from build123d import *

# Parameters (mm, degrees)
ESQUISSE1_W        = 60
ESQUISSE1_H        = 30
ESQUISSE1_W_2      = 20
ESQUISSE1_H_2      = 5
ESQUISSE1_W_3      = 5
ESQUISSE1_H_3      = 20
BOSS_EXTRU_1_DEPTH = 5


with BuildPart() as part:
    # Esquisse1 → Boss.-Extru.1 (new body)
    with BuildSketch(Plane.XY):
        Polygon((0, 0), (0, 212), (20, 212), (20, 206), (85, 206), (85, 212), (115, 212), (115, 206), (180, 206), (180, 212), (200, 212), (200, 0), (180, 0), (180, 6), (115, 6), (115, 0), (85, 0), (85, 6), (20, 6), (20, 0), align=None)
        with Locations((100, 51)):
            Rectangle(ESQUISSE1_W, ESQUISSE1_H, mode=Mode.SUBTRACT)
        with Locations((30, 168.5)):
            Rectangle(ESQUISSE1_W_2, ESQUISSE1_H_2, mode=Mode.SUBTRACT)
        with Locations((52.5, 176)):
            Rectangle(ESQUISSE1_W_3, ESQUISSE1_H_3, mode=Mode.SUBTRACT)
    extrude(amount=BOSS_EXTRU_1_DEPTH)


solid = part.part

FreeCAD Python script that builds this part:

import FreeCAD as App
import Part
import Sketcher


def add_polygon(sketch, points):
    """Adds a closed chain of lines whose ends are joined by coincident constraints."""
    first, n = sketch.GeometryCount, len(points)
    for a, b in zip(points, points[1:] + points[:1]):
        sketch.addGeometry(Part.LineSegment(App.Vector(*a, 0), App.Vector(*b, 0)), False)
    for i in range(n):
        sketch.addConstraint(Sketcher.Constraint("Coincident", first + i, 2, first + (i + 1) % n, 1))

doc = App.newDocument("Part")
body = doc.addObject("PartDesign::Body", "Body")

# Sketch on XY plane
sketch1 = doc.addObject("Sketcher::SketchObject", "Sketch")
body.addObject(sketch1)
sketch1.AttachmentSupport = (doc.XY_Plane, [""])
sketch1.MapMode = "FlatFace"
add_polygon(sketch1, [(0, 212), (0, 0), (20, 0), (20, 6), (85, 6), (85, 0), (115, 0), (115, 6), (180, 6), (180, 0), (200, 0), (200, 212), (180, 212), (180, 206), (115, 206), (115, 212), (85, 212), (85, 206), (20, 206), (20, 212)])  # lines 0-19
add_polygon(sketch1, [(70, 36), (70, 66), (130, 66), (130, 36)])  # lines 20-23
add_polygon(sketch1, [(50, 166), (50, 186), (55, 186), (55, 166)])  # lines 24-27
add_polygon(sketch1, [(20, 166), (20, 171), (40, 171), (40, 166)])  # lines 28-31
sketch1.addConstraint(Sketcher.Constraint("Vertical", 0))
sketch1.addConstraint(Sketcher.Constraint("Horizontal", 1))
sketch1.addConstraint(Sketcher.Constraint("Vertical", 2))
sketch1.addConstraint(Sketcher.Constraint("Horizontal", 3))
sketch1.addConstraint(Sketcher.Constraint("Vertical", 4))
sketch1.addConstraint(Sketcher.Constraint("Horizontal", 5))
sketch1.addConstraint(Sketcher.Constraint("Vertical", 6))
sketch1.addConstraint(Sketcher.Constraint("Horizontal", 7))
sketch1.addConstraint(Sketcher.Constraint("Vertical", 8))
sketch1.addConstraint(Sketcher.Constraint("Horizontal", 9))
sketch1.addConstraint(Sketcher.Constraint("Vertical", 10))
sketch1.addConstraint(Sketcher.Constraint("Horizontal", 11))
sketch1.addConstraint(Sketcher.Constraint("Vertical", 12))
sketch1.addConstraint(Sketcher.Constraint("Horizontal", 13))
sketch1.addConstraint(Sketcher.Constraint("Vertical", 14))
sketch1.addConstraint(Sketcher.Constraint("Horizontal", 15))
sketch1.addConstraint(Sketcher.Constraint("Vertical", 16))
sketch1.addConstraint(Sketcher.Constraint("Horizontal", 17))
sketch1.addConstraint(Sketcher.Constraint("Vertical", 18))
sketch1.addConstraint(Sketcher.Constraint("Horizontal", 19))
sketch1.addConstraint(Sketcher.Constraint("Vertical", 20))
sketch1.addConstraint(Sketcher.Constraint("Horizontal", 21))
sketch1.addConstraint(Sketcher.Constraint("Vertical", 22))
sketch1.addConstraint(Sketcher.Constraint("Horizontal", 23))
sketch1.addConstraint(Sketcher.Constraint("Vertical", 24))
sketch1.addConstraint(Sketcher.Constraint("Horizontal", 25))
sketch1.addConstraint(Sketcher.Constraint("Vertical", 26))
sketch1.addConstraint(Sketcher.Constraint("Horizontal", 27))
sketch1.addConstraint(Sketcher.Constraint("Vertical", 28))
sketch1.addConstraint(Sketcher.Constraint("Horizontal", 29))
sketch1.addConstraint(Sketcher.Constraint("Vertical", 30))
sketch1.addConstraint(Sketcher.Constraint("Horizontal", 31))
sketch1.addConstraint(Sketcher.Constraint("Coincident", 0, 2, -1, 1))
sketch1.addConstraint(Sketcher.Constraint("PointOnObject", 4, 2, -1))
sketch1.addConstraint(Sketcher.Constraint("PointOnObject", 8, 2, -1))
sketch1.addConstraint(Sketcher.Constraint("Horizontal", 3, 2, 6, 2))
sketch1.addConstraint(Sketcher.Constraint("Horizontal", 11, 2, 14, 2))
sketch1.addConstraint(Sketcher.Constraint("Horizontal", 13, 2, 16, 2))
sketch1.addConstraint(Sketcher.Constraint("Horizontal", 15, 2, 18, 2))
sketch1.addConstraint(Sketcher.Constraint("Horizontal", 27, 2, 30, 2))
sketch1.addConstraint(Sketcher.Constraint("Vertical", 8, 2, 11, 2))
sketch1.addConstraint(Sketcher.Constraint("Vertical", 6, 2, 13, 2))
sketch1.addConstraint(Sketcher.Constraint("Vertical", 4, 2, 15, 2))
sketch1.addConstraint(Sketcher.Constraint("Vertical", 2, 2, 17, 2))
sketch1.addConstraint(Sketcher.Constraint("Vertical", 18, 2, 28, 2))
sketch1.addConstraint(Sketcher.Constraint("Equal", 3, 7))
sketch1.addConstraint(Sketcher.Constraint("Equal", 1, 9))
sketch1.addConstraint(Sketcher.Constraint("Equal", 19, 29))
sketch1.addConstraint(Sketcher.Constraint("Equal", 8, 12))
sketch1.addConstraint(Sketcher.Constraint("Equal", 15, 20))
sketch1.addConstraint(Sketcher.Constraint("Equal", 31, 24))
sketch1.addConstraint(Sketcher.Constraint("Equal", 27, 28))
sketch1.addConstraint(Sketcher.Constraint("DistanceX", 1, 1, 1, 2, 20.0))
sketch1.addConstraint(Sketcher.Constraint("DistanceX", 3, 1, 3, 2, 65.0))
sketch1.addConstraint(Sketcher.Constraint("DistanceX", 5, 1, 5, 2, 30.0))
sketch1.addConstraint(Sketcher.Constraint("DistanceX", 21, 1, 21, 2, 60.0))
sketch1.addConstraint(Sketcher.Constraint("DistanceX", 25, 1, 25, 2, 5.0))
sketch1.addConstraint(Sketcher.Constraint("DistanceY", 0, 2, 0, 1, 212.0))
sketch1.addConstraint(Sketcher.Constraint("DistanceY", 2, 1, 2, 2, 6.0))
sketch1.addConstraint(Sketcher.Constraint("DistanceX", -1, 1, 20, 2, 70.0))
sketch1.addConstraint(Sketcher.Constraint("DistanceY", -1, 1, 20, 2, 66.0))
sketch1.addConstraint(Sketcher.Constraint("DistanceX", -1, 1, 24, 2, 50.0))
sketch1.addConstraint(Sketcher.Constraint("DistanceY", -1, 1, 24, 2, 186.0))
pad1 = doc.addObject("PartDesign::Pad", "Pad")
body.addObject(pad1)
pad1.Profile = sketch1
pad1.Length = 5

doc.recompute()
